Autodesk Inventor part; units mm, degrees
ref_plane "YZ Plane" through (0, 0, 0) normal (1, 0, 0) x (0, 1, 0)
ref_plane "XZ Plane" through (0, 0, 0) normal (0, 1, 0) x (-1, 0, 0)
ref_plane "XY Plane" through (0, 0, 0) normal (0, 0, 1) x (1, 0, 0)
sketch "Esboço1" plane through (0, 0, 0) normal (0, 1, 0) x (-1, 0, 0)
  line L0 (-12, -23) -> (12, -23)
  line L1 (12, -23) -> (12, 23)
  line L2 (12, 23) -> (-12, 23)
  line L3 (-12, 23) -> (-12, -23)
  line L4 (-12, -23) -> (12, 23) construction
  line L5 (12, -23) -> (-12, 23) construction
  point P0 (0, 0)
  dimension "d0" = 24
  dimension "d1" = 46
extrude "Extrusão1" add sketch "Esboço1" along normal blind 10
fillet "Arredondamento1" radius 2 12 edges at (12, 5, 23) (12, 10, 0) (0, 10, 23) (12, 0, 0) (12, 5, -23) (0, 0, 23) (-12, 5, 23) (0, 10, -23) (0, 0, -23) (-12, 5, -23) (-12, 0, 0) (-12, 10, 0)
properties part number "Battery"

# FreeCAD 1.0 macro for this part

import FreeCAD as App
import Part
import Sketcher

V = App.Vector
Q = App.Units.Quantity


def add_polygon(sketch, points):
    """Adds a closed chain of lines whose ends are joined by coincident constraints."""
    first, n = sketch.GeometryCount, len(points)
    for a, b in zip(points, points[1:] + points[:1]):
        sketch.addGeometry(Part.LineSegment(App.Vector(*a, 0), App.Vector(*b, 0)), False)
    for i in range(n):
        sketch.addConstraint(Sketcher.Constraint("Coincident", first + i, 2, first + (i + 1) % n, 1))

doc = App.newDocument("Part")
body = doc.addObject("PartDesign::Body", "Body")

# Sketch on XZ plane
sketch1 = body.newObject("Sketcher::SketchObject", "Sketch")
sketch1.AttachmentSupport = (doc.getObject("XZ_Plane"), [""])
sketch1.MapMode = "FlatFace"
add_polygon(sketch1, [(12, 23), (12, -23), (-12, -23), (-12, 23)])  # lines 0-3
sketch1.addConstraint([
    Sketcher.Constraint("Vertical", 0),
    Sketcher.Constraint("Horizontal", 1),
    Sketcher.Constraint("Vertical", 2),
    Sketcher.Constraint("Horizontal", 3),
    Sketcher.Constraint("Symmetric", 0, 2, 2, 2, -1, 1),
    Sketcher.Constraint("DistanceX", 1, 2, 1, 1, Q("24 mm")),
    Sketcher.Constraint("DistanceY", 0, 2, 0, 1, Q("46 mm")),
])
pad1 = body.newObject("PartDesign::Pad", "Pad")
pad1.Profile = sketch1
pad1.Length = 10
pad1.Reversed = True
doc.recompute()

fillet = body.newObject("PartDesign::Fillet", "Fillet")
fillet.Base = (pad1, ["Edge1"])
fillet.UseAllEdges = True
fillet.Radius = 2

doc.recompute()
